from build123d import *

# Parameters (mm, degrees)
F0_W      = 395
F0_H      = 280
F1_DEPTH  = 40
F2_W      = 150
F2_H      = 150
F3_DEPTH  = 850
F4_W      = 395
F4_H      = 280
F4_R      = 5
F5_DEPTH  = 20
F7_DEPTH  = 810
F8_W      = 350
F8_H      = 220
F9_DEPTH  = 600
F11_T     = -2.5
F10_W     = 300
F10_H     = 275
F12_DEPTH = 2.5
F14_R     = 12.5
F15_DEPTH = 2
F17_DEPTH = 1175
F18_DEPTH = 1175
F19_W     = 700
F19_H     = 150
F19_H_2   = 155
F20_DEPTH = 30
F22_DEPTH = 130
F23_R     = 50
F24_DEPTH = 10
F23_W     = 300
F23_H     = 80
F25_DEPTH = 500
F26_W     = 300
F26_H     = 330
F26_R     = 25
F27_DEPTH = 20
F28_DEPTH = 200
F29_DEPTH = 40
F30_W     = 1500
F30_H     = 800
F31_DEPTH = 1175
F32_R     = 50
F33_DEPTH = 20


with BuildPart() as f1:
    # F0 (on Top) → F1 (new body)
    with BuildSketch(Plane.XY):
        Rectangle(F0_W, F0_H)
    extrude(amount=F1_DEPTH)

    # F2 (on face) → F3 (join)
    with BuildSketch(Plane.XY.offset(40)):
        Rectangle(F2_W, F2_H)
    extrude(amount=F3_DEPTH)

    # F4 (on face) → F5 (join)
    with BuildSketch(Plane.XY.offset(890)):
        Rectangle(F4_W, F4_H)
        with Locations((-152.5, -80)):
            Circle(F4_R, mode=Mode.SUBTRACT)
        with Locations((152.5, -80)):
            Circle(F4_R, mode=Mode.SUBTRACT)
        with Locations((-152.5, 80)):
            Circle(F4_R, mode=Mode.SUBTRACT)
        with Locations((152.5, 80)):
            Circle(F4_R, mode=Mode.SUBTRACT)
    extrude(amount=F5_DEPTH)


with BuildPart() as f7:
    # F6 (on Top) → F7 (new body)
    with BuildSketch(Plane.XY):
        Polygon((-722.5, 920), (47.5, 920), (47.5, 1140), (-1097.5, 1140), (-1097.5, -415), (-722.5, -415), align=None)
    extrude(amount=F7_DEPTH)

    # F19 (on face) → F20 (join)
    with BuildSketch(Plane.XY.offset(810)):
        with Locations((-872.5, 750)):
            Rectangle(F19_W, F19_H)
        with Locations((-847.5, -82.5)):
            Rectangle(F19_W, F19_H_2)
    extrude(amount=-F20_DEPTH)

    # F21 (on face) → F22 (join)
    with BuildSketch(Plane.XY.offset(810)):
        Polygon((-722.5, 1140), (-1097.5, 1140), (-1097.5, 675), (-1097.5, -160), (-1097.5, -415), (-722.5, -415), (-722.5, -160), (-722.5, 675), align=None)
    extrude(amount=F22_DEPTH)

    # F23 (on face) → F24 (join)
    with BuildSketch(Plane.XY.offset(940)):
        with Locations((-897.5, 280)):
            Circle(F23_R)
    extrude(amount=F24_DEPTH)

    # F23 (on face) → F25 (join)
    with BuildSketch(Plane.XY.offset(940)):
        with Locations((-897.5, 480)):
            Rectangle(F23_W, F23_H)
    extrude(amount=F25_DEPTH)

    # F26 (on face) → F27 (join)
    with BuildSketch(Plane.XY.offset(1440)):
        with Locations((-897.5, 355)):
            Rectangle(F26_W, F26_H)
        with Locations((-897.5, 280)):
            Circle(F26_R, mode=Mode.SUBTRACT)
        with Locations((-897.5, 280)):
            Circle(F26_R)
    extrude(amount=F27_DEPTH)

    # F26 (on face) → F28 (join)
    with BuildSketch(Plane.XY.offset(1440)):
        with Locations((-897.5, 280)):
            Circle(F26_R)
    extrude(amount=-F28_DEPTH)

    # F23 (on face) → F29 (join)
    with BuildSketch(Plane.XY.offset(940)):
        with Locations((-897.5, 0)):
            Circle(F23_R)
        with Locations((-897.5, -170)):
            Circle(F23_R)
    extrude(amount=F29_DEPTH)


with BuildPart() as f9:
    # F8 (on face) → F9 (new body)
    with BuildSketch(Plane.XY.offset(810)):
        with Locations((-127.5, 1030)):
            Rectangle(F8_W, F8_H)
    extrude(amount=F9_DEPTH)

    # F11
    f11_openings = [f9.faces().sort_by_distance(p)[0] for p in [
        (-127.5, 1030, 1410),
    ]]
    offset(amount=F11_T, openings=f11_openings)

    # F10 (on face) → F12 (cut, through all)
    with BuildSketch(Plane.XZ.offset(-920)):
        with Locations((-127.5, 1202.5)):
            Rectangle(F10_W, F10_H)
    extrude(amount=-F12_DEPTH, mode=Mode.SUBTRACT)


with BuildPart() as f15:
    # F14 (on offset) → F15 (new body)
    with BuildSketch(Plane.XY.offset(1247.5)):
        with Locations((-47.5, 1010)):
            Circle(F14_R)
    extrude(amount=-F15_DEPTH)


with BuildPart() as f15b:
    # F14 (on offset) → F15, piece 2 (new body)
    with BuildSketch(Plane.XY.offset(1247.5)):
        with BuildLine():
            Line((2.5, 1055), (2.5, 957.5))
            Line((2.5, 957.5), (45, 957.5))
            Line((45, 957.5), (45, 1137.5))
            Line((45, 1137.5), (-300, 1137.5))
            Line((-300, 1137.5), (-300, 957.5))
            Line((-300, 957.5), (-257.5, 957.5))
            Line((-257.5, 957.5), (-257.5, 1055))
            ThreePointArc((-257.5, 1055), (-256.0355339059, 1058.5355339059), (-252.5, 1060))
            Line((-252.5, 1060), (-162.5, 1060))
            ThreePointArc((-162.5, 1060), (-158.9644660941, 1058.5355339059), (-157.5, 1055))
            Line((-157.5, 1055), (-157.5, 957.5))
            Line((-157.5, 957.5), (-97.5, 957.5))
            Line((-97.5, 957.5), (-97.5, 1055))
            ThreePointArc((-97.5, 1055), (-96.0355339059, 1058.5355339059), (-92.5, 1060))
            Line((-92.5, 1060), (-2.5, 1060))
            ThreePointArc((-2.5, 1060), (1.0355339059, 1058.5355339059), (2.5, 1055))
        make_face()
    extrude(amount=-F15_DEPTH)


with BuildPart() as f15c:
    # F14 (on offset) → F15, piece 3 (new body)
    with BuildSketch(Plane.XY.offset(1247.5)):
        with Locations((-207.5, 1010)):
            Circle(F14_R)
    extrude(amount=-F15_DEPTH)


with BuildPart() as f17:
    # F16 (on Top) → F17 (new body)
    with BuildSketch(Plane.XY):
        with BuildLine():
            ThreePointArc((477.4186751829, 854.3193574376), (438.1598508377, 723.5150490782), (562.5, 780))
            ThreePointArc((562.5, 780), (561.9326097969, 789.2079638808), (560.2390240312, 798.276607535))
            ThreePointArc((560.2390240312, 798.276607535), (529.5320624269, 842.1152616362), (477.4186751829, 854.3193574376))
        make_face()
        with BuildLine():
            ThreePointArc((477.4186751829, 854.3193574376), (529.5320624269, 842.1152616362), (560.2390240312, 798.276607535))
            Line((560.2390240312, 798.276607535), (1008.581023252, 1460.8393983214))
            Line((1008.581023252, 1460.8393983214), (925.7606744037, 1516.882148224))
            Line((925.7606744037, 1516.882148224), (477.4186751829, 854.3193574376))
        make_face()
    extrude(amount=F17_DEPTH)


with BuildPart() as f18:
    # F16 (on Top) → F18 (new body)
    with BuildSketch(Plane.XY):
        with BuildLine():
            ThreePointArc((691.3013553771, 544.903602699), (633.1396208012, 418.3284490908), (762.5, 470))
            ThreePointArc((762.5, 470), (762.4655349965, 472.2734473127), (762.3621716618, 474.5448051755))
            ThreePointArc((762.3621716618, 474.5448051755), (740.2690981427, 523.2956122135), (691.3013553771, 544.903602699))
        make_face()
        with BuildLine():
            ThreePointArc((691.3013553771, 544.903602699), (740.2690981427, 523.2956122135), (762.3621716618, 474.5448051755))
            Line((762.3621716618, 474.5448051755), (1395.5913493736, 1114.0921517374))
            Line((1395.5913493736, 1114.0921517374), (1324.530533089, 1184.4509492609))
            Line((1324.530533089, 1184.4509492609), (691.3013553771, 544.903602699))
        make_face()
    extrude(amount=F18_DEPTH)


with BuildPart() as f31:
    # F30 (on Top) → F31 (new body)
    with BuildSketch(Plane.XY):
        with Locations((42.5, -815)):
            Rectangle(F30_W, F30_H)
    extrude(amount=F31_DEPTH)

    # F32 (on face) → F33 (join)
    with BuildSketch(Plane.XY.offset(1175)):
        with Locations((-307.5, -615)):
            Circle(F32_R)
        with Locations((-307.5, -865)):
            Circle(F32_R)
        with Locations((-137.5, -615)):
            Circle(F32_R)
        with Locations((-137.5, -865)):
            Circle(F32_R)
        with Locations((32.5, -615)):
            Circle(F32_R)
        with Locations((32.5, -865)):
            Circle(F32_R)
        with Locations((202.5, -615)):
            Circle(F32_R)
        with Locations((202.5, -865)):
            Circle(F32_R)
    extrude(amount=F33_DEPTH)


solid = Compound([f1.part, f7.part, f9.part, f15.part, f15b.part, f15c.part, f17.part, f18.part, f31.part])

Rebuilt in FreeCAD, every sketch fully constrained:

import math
import FreeCAD as App
import Part
import Sketcher
from FreeCAD import Vector
Q = App.Units.Quantity


def faces_at(feature, points):
    """Names of the faces that lie closest to the given points."""
    faces = feature.Shape.Faces
    near = lambda p: min(range(len(faces)), key=lambda i: faces[i].distToShape(Part.Vertex(*p))[0])
    return sorted({f"Face{near(p) + 1}" for p in points})


def add_polygon(sketch, points):
    """Adds a closed chain of lines whose ends are joined by coincident constraints."""
    first, n = sketch.GeometryCount, len(points)
    for a, b in zip(points, points[1:] + points[:1]):
        sketch.addGeometry(Part.LineSegment(App.Vector(*a, 0), App.Vector(*b, 0)), False)
    for i in range(n):
        sketch.addConstraint(Sketcher.Constraint("Coincident", first + i, 2, first + (i + 1) % n, 1))

doc = App.newDocument("Part")
body = doc.addObject("PartDesign::Body", "Body")

# Sketch on XY plane
sketch1 = body.newObject("Sketcher::SketchObject", "Sketch")
sketch1.AttachmentSupport = (doc.getObject("XY_Plane"), [""])
sketch1.MapMode = "FlatFace"
add_polygon(sketch1, [(-198, 140), (-198, -140), (198, -140), (198, 140)])  # lines 0-3
sketch1.addConstraint([
    Sketcher.Constraint("Vertical", 0),
    Sketcher.Constraint("Horizontal", 1),
    Sketcher.Constraint("Vertical", 2),
    Sketcher.Constraint("Horizontal", 3),
    Sketcher.Constraint("Symmetric", 0, 2, 2, 2, -1, 1),
    Sketcher.Constraint("DistanceX", 1, 1, 1, 2, Q("395 mm")),
    Sketcher.Constraint("DistanceY", 0, 2, 0, 1, Q("280 mm")),
])
pad1 = body.newObject("PartDesign::Pad", "Pad")
pad1.Profile = sketch1
pad1.Length = 40

# Sketch on XY plane
sketch2 = body.newObject("Sketcher::SketchObject", "Sketch001")
sketch2.AttachmentSupport = (doc.getObject("XY_Plane"), [""])
sketch2.MapMode = "FlatFace"
sketch2.AttachmentOffset = App.Placement(Vector(0, 0, 40), App.Rotation())
add_polygon(sketch2, [(-75, 75), (-75, -75), (75, -75), (75, 75)])  # lines 0-3
sketch2.addConstraint([
    Sketcher.Constraint("Vertical", 0),
    Sketcher.Constraint("Horizontal", 1),
    Sketcher.Constraint("Vertical", 2),
    Sketcher.Constraint("Horizontal", 3),
    Sketcher.Constraint("Symmetric", 0, 2, 2, 2, -1, 1),
    Sketcher.Constraint("Equal", 3, 0),
    Sketcher.Constraint("DistanceX", 1, 1, 1, 2, Q("150 mm")),
])
pad2 = body.newObject("PartDesign::Pad", "Pad001")
pad2.Profile = sketch2
pad2.Length = 850

# Sketch on XY plane
sketch3 = body.newObject("Sketcher::SketchObject", "Sketch002")
sketch3.AttachmentSupport = (doc.getObject("XY_Plane"), [""])
sketch3.MapMode = "FlatFace"
sketch3.AttachmentOffset = App.Placement(Vector(0, 0, 890), App.Rotation())
add_polygon(sketch3, [(-198, 140), (-198, -140), (198, -140), (198, 140)])  # lines 0-3
sketch3.addGeometry(Part.Circle(Vector(-152, -80, 0), Vector(0, 0, 1), 5), False)  # 4
sketch3.addGeometry(Part.Circle(Vector(152, -80, 0), Vector(0, 0, 1), 5), False)  # 5
sketch3.addGeometry(Part.Circle(Vector(-152, 80, 0), Vector(0, 0, 1), 5), False)  # 6
sketch3.addGeometry(Part.Circle(Vector(152, 80, 0), Vector(0, 0, 1), 5), False)  # 7
sketch3.addConstraint([
    Sketcher.Constraint("Vertical", 0),
    Sketcher.Constraint("Horizontal", 1),
    Sketcher.Constraint("Vertical", 2),
    Sketcher.Constraint("Horizontal", 3),
    Sketcher.Constraint("Equal", 4, 5),
    Sketcher.Constraint("Equal", 5, 6),
    Sketcher.Constraint("Equal", 6, 7),
    Sketcher.Constraint("Symmetric", 5, 3, 6, 3, -1, 1),
    Sketcher.Constraint("Symmetric", 4, 3, 7, 3, -1, 1),
    Sketcher.Constraint("Symmetric", 0, 2, 2, 2, -1, 1),
    Sketcher.Constraint("Symmetric", 4, 3, 5, 3, -2),
    Sketcher.Constraint("Diameter", 4, Q("10 mm")),
    Sketcher.Constraint("DistanceX", 1, 1, 1, 2, Q("395 mm")),
    Sketcher.Constraint("DistanceY", 0, 2, 0, 1, Q("280 mm")),
    Sketcher.Constraint("DistanceY", 4, 3, -1, 1, Q("80 mm")),
    Sketcher.Constraint("DistanceX", 4, 3, 5, 3, Q("305 mm")),
])
pad3 = body.newObject("PartDesign::Pad", "Pad002")
pad3.Profile = sketch3
pad3.Length = 20
body2 = doc.addObject("PartDesign::Body", "Body001")

# Sketch on XY plane
sketch4 = body2.newObject("Sketcher::SketchObject", "Sketch003")
sketch4.AttachmentSupport = (doc.getObject("XY_Plane001"), [""])
sketch4.MapMode = "FlatFace"
add_polygon(sketch4, [(-722, 920), (48, 920), (48, 1140), (-1098, 1140), (-1098, -415), (-722, -415)])  # lines 0-5
sketch4.addConstraint([
    Sketcher.Constraint("Horizontal", 0),
    Sketcher.Constraint("Vertical", 1),
    Sketcher.Constraint("Horizontal", 2),
    Sketcher.Constraint("Vertical", 3),
    Sketcher.Constraint("Horizontal", 4),
    Sketcher.Constraint("Vertical", 5),
    Sketcher.Constraint("DistanceX", 0, 1, 0, 2, Q("770 mm")),
    Sketcher.Constraint("DistanceX", 2, 2, 2, 1, Q("1145 mm")),
    Sketcher.Constraint("DistanceY", 1, 1, 1, 2, Q("220 mm")),
    Sketcher.Constraint("DistanceY", 3, 2, 3, 1, Q("1555 mm")),
    Sketcher.Constraint("DistanceY", -1, 1, 0, 2, Q("920 mm")),
    Sketcher.Constraint("DistanceX", -1, 1, 0, 2, Q("47.5 mm")),
])
pad4 = body2.newObject("PartDesign::Pad", "Pad003")
pad4.Profile = sketch4
pad4.Length = 810

# Sketch on XY plane
sketch5 = body2.newObject("Sketcher::SketchObject", "Sketch004")
sketch5.AttachmentSupport = (doc.getObject("XY_Plane001"), [""])
sketch5.MapMode = "FlatFace"
sketch5.AttachmentOffset = App.Placement(Vector(0, 0, 810), App.Rotation())
add_polygon(sketch5, [(-1222, 825), (-1222, 675), (-522, 675), (-522, 825)])  # lines 0-3
add_polygon(sketch5, [(-1198, -5), (-1198, -160), (-498, -160), (-498, -5)])  # lines 4-7
sketch5.addConstraint([
    Sketcher.Constraint("Vertical", 0),
    Sketcher.Constraint("Horizontal", 1),
    Sketcher.Constraint("Vertical", 2),
    Sketcher.Constraint("Horizontal", 3),
    Sketcher.Constraint("Vertical", 4),
    Sketcher.Constraint("Horizontal", 5),
    Sketcher.Constraint("Vertical", 6),
    Sketcher.Constraint("Horizontal", 7),
    Sketcher.Constraint("Equal", 3, 5),
    Sketcher.Constraint("DistanceX", 1, 1, 1, 2, Q("700 mm")),
    Sketcher.Constraint("DistanceY", 0, 2, 0, 1, Q("150 mm")),
    Sketcher.Constraint("DistanceY", 4, 2, 4, 1, Q("155 mm")),
    Sketcher.Constraint("DistanceY", -1, 1, 0, 2, Q("675 mm")),
    Sketcher.Constraint("DistanceY", 4, 2, -1, 1, Q("160 mm")),
    Sketcher.Constraint("DistanceX", 0, 2, 4, 2, Q("25 mm")),
    Sketcher.Constraint("DistanceX", 0, 2, -1, 1, Q("1222.5 mm")),
])
pad5 = body2.newObject("PartDesign::Pad", "Pad004")
pad5.Profile = sketch5
pad5.Length = 30
pad5.Reversed = True

# Sketch on XY plane
sketch6 = body2.newObject("Sketcher::SketchObject", "Sketch005")
sketch6.AttachmentSupport = (doc.getObject("XY_Plane001"), [""])
sketch6.MapMode = "FlatFace"
sketch6.AttachmentOffset = App.Placement(Vector(0, 0, 810), App.Rotation())
add_polygon(sketch6, [(-722, 1140), (-1098, 1140), (-1098, -415), (-722, -415)])  # lines 0-3
sketch6.addConstraint([
    Sketcher.Constraint("Horizontal", 0),
    Sketcher.Constraint("Vertical", 1),
    Sketcher.Constraint("Horizontal", 2),
    Sketcher.Constraint("Vertical", 3),
    Sketcher.Constraint("DistanceX", 0, 2, 0, 1, Q("375 mm")),
    Sketcher.Constraint("DistanceY", 1, 2, 1, 1, Q("1555 mm")),
    Sketcher.Constraint("DistanceY", -1, 1, 0, 2, Q("1140 mm")),
    Sketcher.Constraint("DistanceX", 0, 2, -1, 1, Q("1097.5 mm")),
])
pad6 = body2.newObject("PartDesign::Pad", "Pad005")
pad6.Profile = sketch6
pad6.Length = 130

# Sketch on XY plane
sketch7 = body2.newObject("Sketcher::SketchObject", "Sketch006")
sketch7.AttachmentSupport = (doc.getObject("XY_Plane001"), [""])
sketch7.MapMode = "FlatFace"
sketch7.AttachmentOffset = App.Placement(Vector(0, 0, 940), App.Rotation())
sketch7.addGeometry(Part.Circle(Vector(-898, 280, 0), Vector(0, 0, 1), 50), False)
sketch7.addConstraint([
    Sketcher.Constraint("Diameter", 0, Q("100 mm")),
    Sketcher.Constraint("DistanceY", -1, 1, 0, 3, Q("280 mm")),
    Sketcher.Constraint("DistanceX", 0, 3, -1, 1, Q("897.5 mm")),
])
pad7 = body2.newObject("PartDesign::Pad", "Pad006")
pad7.Profile = sketch7
pad7.Length = 10

# Sketch on XY plane
sketch8 = body2.newObject("Sketcher::SketchObject", "Sketch007")
sketch8.AttachmentSupport = (doc.getObject("XY_Plane001"), [""])
sketch8.MapMode = "FlatFace"
sketch8.AttachmentOffset = App.Placement(Vector(0, 0, 940), App.Rotation())
add_polygon(sketch8, [(-1048, 520), (-1048, 440), (-748, 440), (-748, 520)])  # lines 0-3
sketch8.addConstraint([
    Sketcher.Constraint("Vertical", 0),
    Sketcher.Constraint("Horizontal", 1),
    Sketcher.Constraint("Vertical", 2),
    Sketcher.Constraint("Horizontal", 3),
    Sketcher.Constraint("DistanceX", 1, 1, 1, 2, Q("300 mm")),
    Sketcher.Constraint("DistanceY", 0, 2, 0, 1, Q("80 mm")),
    Sketcher.Constraint("DistanceY", -1, 1, 0, 2, Q("440 mm")),
    Sketcher.Constraint("DistanceX", 0, 2, -1, 1, Q("1047.5 mm")),
])
pad8 = body2.newObject("PartDesign::Pad", "Pad007")
pad8.Profile = sketch8
pad8.Length = 500

# Sketch on XY plane
sketch9 = body2.newObject("Sketcher::SketchObject", "Sketch008")
sketch9.AttachmentSupport = (doc.getObject("XY_Plane001"), [""])
sketch9.MapMode = "FlatFace"
sketch9.AttachmentOffset = App.Placement(Vector(0, 0, 1440), App.Rotation())
add_polygon(sketch9, [(-1048, 520), (-1048, 190), (-748, 190), (-748, 520)])  # lines 0-3
sketch9.addConstraint([
    Sketcher.Constraint("Vertical", 0),
    Sketcher.Constraint("Horizontal", 1),
    Sketcher.Constraint("Vertical", 2),
    Sketcher.Constraint("Horizontal", 3),
    Sketcher.Constraint("DistanceX", 1, 1, 1, 2, Q("300 mm")),
    Sketcher.Constraint("DistanceY", 0, 2, 0, 1, Q("330 mm")),
    Sketcher.Constraint("DistanceY", -1, 1, 0, 2, Q("190 mm")),
    Sketcher.Constraint("DistanceX", 0, 2, -1, 1, Q("1047.5 mm")),
])
pad9 = body2.newObject("PartDesign::Pad", "Pad008")
pad9.Profile = sketch9
pad9.Length = 20

# Sketch on XY plane
sketch10 = body2.newObject("Sketcher::SketchObject", "Sketch009")
sketch10.AttachmentSupport = (doc.getObject("XY_Plane001"), [""])
sketch10.MapMode = "FlatFace"
sketch10.AttachmentOffset = App.Placement(Vector(0, 0, 1440), App.Rotation())
sketch10.addGeometry(Part.Circle(Vector(-898, 280, 0), Vector(0, 0, 1), 25), False)
sketch10.addConstraint([
    Sketcher.Constraint("Diameter", 0, Q("50 mm")),
    Sketcher.Constraint("DistanceY", -1, 1, 0, 3, Q("280 mm")),
    Sketcher.Constraint("DistanceX", 0, 3, -1, 1, Q("897.5 mm")),
])
pad10 = body2.newObject("PartDesign::Pad", "Pad009")
pad10.Profile = sketch10
pad10.Length = 200
pad10.Reversed = True

# Sketch on XY plane
sketch11 = body2.newObject("Sketcher::SketchObject", "Sketch010")
sketch11.AttachmentSupport = (doc.getObject("XY_Plane001"), [""])
sketch11.MapMode = "FlatFace"
sketch11.AttachmentOffset = App.Placement(Vector(0, 0, 940), App.Rotation())
sketch11.addGeometry([
    Part.Circle(Vector(-898, 0, 0), Vector(0, 0, 1), 50),
    Part.Circle(Vector(-898, -170, 0), Vector(0, 0, 1), 50),
], False)
sketch11.addConstraint([
    Sketcher.Constraint("Equal", 0, 1),
    Sketcher.Constraint("PointOnObject", 0, 3, -1),
    Sketcher.Constraint("Vertical", 0, 3, 1, 3),
    Sketcher.Constraint("Diameter", 0, Q("100 mm")),
    Sketcher.Constraint("DistanceY", 1, 3, -1, 1, Q("170 mm")),
    Sketcher.Constraint("DistanceX", 0, 3, -1, 1, Q("897.5 mm")),
])
pad11 = body2.newObject("PartDesign::Pad", "Pad010")
pad11.Profile = sketch11
pad11.Length = 40
body3 = doc.addObject("PartDesign::Body", "Body002")

# Sketch on XY plane
sketch12 = body3.newObject("Sketcher::SketchObject", "Sketch011")
sketch12.AttachmentSupport = (doc.getObject("XY_Plane002"), [""])
sketch12.MapMode = "FlatFace"
sketch12.AttachmentOffset = App.Placement(Vector(0, 0, 810), App.Rotation())
add_polygon(sketch12, [(-302, 1140), (-302, 920), (48, 920), (48, 1140)])  # lines 0-3
sketch12.addConstraint([
    Sketcher.Constraint("Vertical", 0),
    Sketcher.Constraint("Horizontal", 1),
    Sketcher.Constraint("Vertical", 2),
    Sketcher.Constraint("Horizontal", 3),
    Sketcher.Constraint("DistanceX", 1, 1, 1, 2, Q("350 mm")),
    Sketcher.Constraint("DistanceY", 0, 2, 0, 1, Q("220 mm")),
    Sketcher.Constraint("DistanceY", -1, 1, 0, 2, Q("920 mm")),
    Sketcher.Constraint("DistanceX", 0, 2, -1, 1, Q("302.5 mm")),
])
pad12 = body3.newObject("PartDesign::Pad", "Pad011")
pad12.Profile = sketch12
pad12.Length = 600
doc.recompute()

thickness = body3.newObject("PartDesign::Thickness", "Thickness")
thickness.Base = (pad12, faces_at(pad12, [(-127.5, 1030, 1410)]))
thickness.Value = 2.5
thickness.Reversed = True
thickness.Join = "Arc"

# Sketch on XZ plane
sketch13 = body3.newObject("Sketcher::SketchObject", "Sketch012")
sketch13.AttachmentSupport = (doc.getObject("XZ_Plane002"), [""])
sketch13.MapMode = "FlatFace"
sketch13.AttachmentOffset = App.Placement(Vector(0, 0, -920), App.Rotation())
add_polygon(sketch13, [(-278, 1340), (-278, 1065), (22, 1065), (22, 1340)])  # lines 0-3
sketch13.addConstraint([
    Sketcher.Constraint("Vertical", 0),
    Sketcher.Constraint("Horizontal", 1),
    Sketcher.Constraint("Vertical", 2),
    Sketcher.Constraint("Horizontal", 3),
    Sketcher.Constraint("DistanceX", 1, 1, 1, 2, Q("300 mm")),
    Sketcher.Constraint("DistanceY", 0, 2, 0, 1, Q("275 mm")),
    Sketcher.Constraint("DistanceY", -1, 1, 0, 2, Q("1065 mm")),
    Sketcher.Constraint("DistanceX", 0, 2, -1, 1, Q("277.5 mm")),
])
pocket1 = body3.newObject("PartDesign::Pocket", "Pocket")
pocket1.Profile = sketch13
pocket1.Length = 2.5
body4 = doc.addObject("PartDesign::Body", "Body003")

# Sketch on XY plane
sketch14 = body4.newObject("Sketcher::SketchObject", "Sketch013")
sketch14.AttachmentSupport = (doc.getObject("XY_Plane003"), [""])
sketch14.MapMode = "FlatFace"
sketch14.AttachmentOffset = App.Placement(Vector(0, 0, 1247.5), App.Rotation())
sketch14.addGeometry(Part.Circle(Vector(-48, 1010, 0), Vector(0, 0, 1), 12), False)
sketch14.addConstraint([
    Sketcher.Constraint("Diameter", 0, Q("25 mm")),
    Sketcher.Constraint("DistanceY", -1, 1, 0, 3, Q("1010 mm")),
    Sketcher.Constraint("DistanceX", 0, 3, -1, 1, Q("47.5 mm")),
])
pad13 = body4.newObject("PartDesign::Pad", "Pad012")
pad13.Profile = sketch14
pad13.Length = 2
pad13.Reversed = True
body5 = doc.addObject("PartDesign::Body", "Body004")

# Sketch on XY plane
sketch15 = body5.newObject("Sketcher::SketchObject", "Sketch014")
sketch15.AttachmentSupport = (doc.getObject("XY_Plane004"), [""])
sketch15.MapMode = "FlatFace"
sketch15.AttachmentOffset = App.Placement(Vector(0, 0, 1247.5), App.Rotation())
sketch15.addGeometry([
    Part.LineSegment(Vector(2, 1055, 0), Vector(2, 958, 0)),  # 0
    Part.LineSegment(Vector(2, 958, 0), Vector(45, 958, 0)),  # 1
    Part.LineSegment(Vector(45, 958, 0), Vector(45, 1138, 0)),  # 2
    Part.LineSegment(Vector(45, 1138, 0), Vector(-300, 1138, 0)),  # 3
    Part.LineSegment(Vector(-300, 1138, 0), Vector(-300, 958, 0)),  # 4
    Part.LineSegment(Vector(-300, 958, 0), Vector(-258, 958, 0)),  # 5
    Part.LineSegment(Vector(-258, 958, 0), Vector(-258, 1055, 0)),  # 6
    Part.ArcOfCircle(Part.Circle(Vector(-252, 1055, 0), Vector(0, 0, 1), 5), math.radians(90), math.radians(180)),  # 7
    Part.LineSegment(Vector(-252, 1060, 0), Vector(-162, 1060, 0)),  # 8
    Part.ArcOfCircle(Part.Circle(Vector(-162, 1055, 0), Vector(0, 0, 1), 5), math.radians(0), math.radians(90)),  # 9
    Part.LineSegment(Vector(-158, 1055, 0), Vector(-158, 958, 0)),  # 10
    Part.LineSegment(Vector(-158, 958, 0), Vector(-98, 958, 0)),  # 11
    Part.LineSegment(Vector(-98, 958, 0), Vector(-98, 1055, 0)),  # 12
    Part.ArcOfCircle(Part.Circle(Vector(-92, 1055, 0), Vector(0, 0, 1), 5), math.radians(90), math.radians(180)),  # 13
    Part.LineSegment(Vector(-92, 1060, 0), Vector(-2, 1060, 0)),  # 14
    Part.ArcOfCircle(Part.Circle(Vector(-2, 1055, 0), Vector(0, 0, 1), 5), math.radians(0), math.radians(90)),  # 15
], False)
sketch15.addConstraint([
    Sketcher.Constraint("Coincident", 0, 2, 1, 1),
    Sketcher.Constraint("Coincident", 1, 2, 2, 1),
    Sketcher.Constraint("Coincident", 2, 2, 3, 1),
    Sketcher.Constraint("Coincident", 3, 2, 4, 1),
    Sketcher.Constraint("Coincident", 4, 2, 5, 1),
    Sketcher.Constraint("Coincident", 5, 2, 6, 1),
    Sketcher.Constraint("Tangent", 6, 2, 7, 2),
    Sketcher.Constraint("Tangent", 7, 1, 8, 1),
    Sketcher.Constraint("Tangent", 8, 2, 9, 2),
    Sketcher.Constraint("Tangent", 9, 1, 10, 1),
    Sketcher.Constraint("Coincident", 10, 2, 11, 1),
    Sketcher.Constraint("Coincident", 11, 2, 12, 1),
    Sketcher.Constraint("Tangent", 12, 2, 13, 2),
    Sketcher.Constraint("Tangent", 13, 1, 14, 1),
    Sketcher.Constraint("Tangent", 14, 2, 15, 2),
    Sketcher.Constraint("Tangent", 15, 1, 0, 1),
    Sketcher.Constraint("Vertical", 0),
    Sketcher.Constraint("Horizontal", 1),
    Sketcher.Constraint("Vertical", 2),
    Sketcher.Constraint("Horizontal", 3),
    Sketcher.Constraint("Vertical", 4),
    Sketcher.Constraint("Horizontal", 5),
    Sketcher.Constraint("Vertical", 6),
    Sketcher.Constraint("Horizontal", 8),
    Sketcher.Constraint("Vertical", 10),
    Sketcher.Constraint("Horizontal", 11),
    Sketcher.Constraint("Vertical", 12),
    Sketcher.Constraint("Horizontal", 14),
    Sketcher.Constraint("Equal", 7, 9),
    Sketcher.Constraint("Equal", 9, 13),
    Sketcher.Constraint("Equal", 13, 15),
    Sketcher.Constraint("Horizontal", 9, 3, 13, 3),
    Sketcher.Constraint("Horizontal", 1, 2, 4, 2),
    Sketcher.Constraint("Horizontal", 5, 2, 10, 2),
    Sketcher.Constraint("Equal", 1, 5),
    Sketcher.Constraint("Equal", 8, 14),
    Sketcher.Constraint("Radius", 7, Q("5 mm")),
    Sketcher.Constraint("DistanceX", 3, 2, 3, 1, Q("345 mm")),
    Sketcher.Constraint("DistanceX", 8, 1, 8, 2, Q("90 mm")),
    Sketcher.Constraint("DistanceX", 11, 1, 11, 2, Q("60 mm")),
    Sketcher.Constraint("DistanceY", 2, 1, 2, 2, Q("180 mm")),
    Sketcher.Constraint("DistanceY", 0, 2, 0, 1, Q("97.5 mm")),
    Sketcher.Constraint("DistanceY", -1, 1, 7, 3, Q("1055 mm")),
    Sketcher.Constraint("DistanceX", -1, 1, 1, 2, Q("45 mm")),
])
pad14 = body5.newObject("PartDesign::Pad", "Pad013")
pad14.Profile = sketch15
pad14.Length = 2
pad14.Reversed = True
body6 = doc.addObject("PartDesign::Body", "Body005")

# Sketch on XY plane
sketch16 = body6.newObject("Sketcher::SketchObject", "Sketch015")
sketch16.AttachmentSupport = (doc.getObject("XY_Plane005"), [""])
sketch16.MapMode = "FlatFace"
sketch16.AttachmentOffset = App.Placement(Vector(0, 0, 1247.5), App.Rotation())
sketch16.addGeometry(Part.Circle(Vector(-208, 1010, 0), Vector(0, 0, 1), 12), False)
sketch16.addConstraint([
    Sketcher.Constraint("Diameter", 0, Q("25 mm")),
    Sketcher.Constraint("DistanceY", -1, 1, 0, 3, Q("1010 mm")),
    Sketcher.Constraint("DistanceX", 0, 3, -1, 1, Q("207.5 mm")),
])
pad15 = body6.newObject("PartDesign::Pad", "Pad014")
pad15.Profile = sketch16
pad15.Length = 2
pad15.Reversed = True
body7 = doc.addObject("PartDesign::Body", "Body006")

# Sketch on XY plane
sketch17 = body7.newObject("Sketcher::SketchObject", "Sketch016")
sketch17.AttachmentSupport = (doc.getObject("XY_Plane006"), [""])
sketch17.MapMode = "FlatFace"
sketch17.addGeometry([
    Part.ArcOfCircle(Part.Circle(Vector(488, 780, 0), Vector(0, 0, 1), 75), math.radians(98), math.radians(360)),  # 0
    Part.ArcOfCircle(Part.Circle(Vector(488, 780, 0), Vector(0, 0, 1), 75), math.radians(0), math.radians(14.1)),  # 1
    Part.LineSegment(Vector(560, 798, 0), Vector(1009, 1461, 0)),  # 2
    Part.LineSegment(Vector(1009, 1461, 0), Vector(926, 1517, 0)),  # 3
    Part.LineSegment(Vector(926, 1517, 0), Vector(477, 854, 0)),  # 4
], False)
sketch17.addConstraint([
    Sketcher.Constraint("Tangent", 0, 2, 1, 1),
    Sketcher.Constraint("Coincident", 1, 2, 2, 1),
    Sketcher.Constraint("Coincident", 2, 2, 3, 1),
    Sketcher.Constraint("Coincident", 3, 2, 4, 1),
    Sketcher.Constraint("Coincident", 4, 2, 0, 1),
    Sketcher.Constraint("Equal", 0, 1),
    Sketcher.Constraint("Perpendicular", 2, 3),
    Sketcher.Constraint("Perpendicular", 3, 4),
    Sketcher.Constraint("Horizontal", 1, 3, 0, 2),
    Sketcher.Constraint("Equal", 2, 4),
    Sketcher.Constraint("Radius", 0, Q("75 mm")),
    Sketcher.Constraint("Distance", 2, Q("800 mm")),
    Sketcher.Constraint("Distance", 3, Q("100 mm")),
    Sketcher.Constraint("DistanceY", -1, 1, 0, 3, Q("780 mm")),
    Sketcher.Constraint("DistanceX", -1, 1, 0, 3, Q("487.5 mm")),
    Sketcher.Constraint("DistanceX", 1, 2, 2, 2, Q("448.341999 mm")),
])
pad16 = body7.newObject("PartDesign::Pad", "Pad015")
pad16.Profile = sketch17
pad16.Length = 1175
body8 = doc.addObject("PartDesign::Body", "Body007")

# Sketch on XY plane
sketch18 = body8.newObject("Sketcher::SketchObject", "Sketch017")
sketch18.AttachmentSupport = (doc.getObject("XY_Plane007"), [""])
sketch18.MapMode = "FlatFace"
sketch18.addGeometry([
    Part.ArcOfCircle(Part.Circle(Vector(687.5, 470, 0), Vector(0, 0, 1), 75), math.radians(87), math.radians(360)),  # 0
    Part.ArcOfCircle(Part.Circle(Vector(687.5, 470, 0), Vector(0, 0, 1), 75), math.radians(0), math.radians(3.47)),  # 1
    Part.LineSegment(Vector(762.4, 474.5, 0), Vector(1395.6, 1114.1, 0)),  # 2
    Part.LineSegment(Vector(1395.6, 1114.1, 0), Vector(1324.5, 1184.5, 0)),  # 3
    Part.LineSegment(Vector(1324.5, 1184.5, 0), Vector(691.3, 544.9, 0)),  # 4
], False)
sketch18.addConstraint([
    Sketcher.Constraint("Tangent", 0, 2, 1, 1),
    Sketcher.Constraint("Coincident", 1, 2, 2, 1),
    Sketcher.Constraint("Coincident", 2, 2, 3, 1),
    Sketcher.Constraint("Coincident", 3, 2, 4, 1),
    Sketcher.Constraint("Coincident", 4, 2, 0, 1),
    Sketcher.Constraint("Equal", 0, 1),
    Sketcher.Constraint("Perpendicular", 2, 3),
    Sketcher.Constraint("Perpendicular", 3, 4),
    Sketcher.Constraint("Horizontal", 1, 3, 0, 2),
    Sketcher.Constraint("Equal", 2, 4),
    Sketcher.Constraint("Radius", 0, Q("75 mm")),
    Sketcher.Constraint("Distance", 2, Q("900 mm")),
    Sketcher.Constraint("Distance", 3, Q("100 mm")),
    Sketcher.Constraint("DistanceY", -1, 1, 0, 3, Q("470 mm")),
    Sketcher.Constraint("DistanceX", -1, 1, 0, 3, Q("687.5 mm")),
    Sketcher.Constraint("DistanceX", -1, 1, 2, 2, Q("1395.591349 mm")),
])
pad17 = body8.newObject("PartDesign::Pad", "Pad016")
pad17.Profile = sketch18
pad17.Length = 1175
body9 = doc.addObject("PartDesign::Body", "Body008")

# Sketch on XY plane
sketch19 = body9.newObject("Sketcher::SketchObject", "Sketch018")
sketch19.AttachmentSupport = (doc.getObject("XY_Plane008"), [""])
sketch19.MapMode = "FlatFace"
add_polygon(sketch19, [(-708, -415), (-708, -1215), (792, -1215), (792, -415)])  # lines 0-3
sketch19.addConstraint([
    Sketcher.Constraint("Vertical", 0),
    Sketcher.Constraint("Horizontal", 1),
    Sketcher.Constraint("Vertical", 2),
    Sketcher.Constraint("Horizontal", 3),
    Sketcher.Constraint("DistanceX", 1, 1, 1, 2, Q("1500 mm")),
    Sketcher.Constraint("DistanceY", 0, 2, 0, 1, Q("800 mm")),
    Sketcher.Constraint("DistanceY", 0, 2, -1, 1, Q("1215 mm")),
    Sketcher.Constraint("DistanceX", 0, 2, -1, 1, Q("707.5 mm")),
])
pad18 = body9.newObject("PartDesign::Pad", "Pad017")
pad18.Profile = sketch19
pad18.Length = 1175

# Sketch on XY plane
sketch20 = body9.newObject("Sketcher::SketchObject", "Sketch019")
sketch20.AttachmentSupport = (doc.getObject("XY_Plane008"), [""])
sketch20.MapMode = "FlatFace"
sketch20.AttachmentOffset = App.Placement(Vector(0, 0, 1175), App.Rotation())
sketch20.addGeometry([
    Part.Circle(Vector(-308, -615, 0), Vector(0, 0, 1), 50),  # 0
    Part.Circle(Vector(-308, -865, 0), Vector(0, 0, 1), 50),  # 1
    Part.Circle(Vector(-138, -615, 0), Vector(0, 0, 1), 50),  # 2
    Part.Circle(Vector(-138, -865, 0), Vector(0, 0, 1), 50),  # 3
    Part.Circle(Vector(32, -615, 0), Vector(0, 0, 1), 50),  # 4
    Part.Circle(Vector(32, -865, 0), Vector(0, 0, 1), 50),  # 5
    Part.Circle(Vector(202, -615, 0), Vector(0, 0, 1), 50),  # 6
    Part.Circle(Vector(202, -865, 0), Vector(0, 0, 1), 50),  # 7
], False)
sketch20.addConstraint([
    Sketcher.Constraint("Equal", 0, 1),
    Sketcher.Constraint("Equal", 1, 2),
    Sketcher.Constraint("Equal", 2, 3),
    Sketcher.Constraint("Equal", 3, 4),
    Sketcher.Constraint("Equal", 4, 5),
    Sketcher.Constraint("Equal", 5, 6),
    Sketcher.Constraint("Equal", 6, 7),
    Sketcher.Constraint("Horizontal", 0, 3, 2, 3),
    Sketcher.Constraint("Horizontal", 1, 3, 3, 3),
    Sketcher.Constraint("Horizontal", 2, 3, 4, 3),
    Sketcher.Constraint("Horizontal", 3, 3, 5, 3),
    Sketcher.Constraint("Horizontal", 4, 3, 6, 3),
    Sketcher.Constraint("Horizontal", 5, 3, 7, 3),
    Sketcher.Constraint("Vertical", 0, 3, 1, 3),
    Sketcher.Constraint("Vertical", 2, 3, 3, 3),
    Sketcher.Constraint("Vertical", 4, 3, 5, 3),
    Sketcher.Constraint("Vertical", 6, 3, 7, 3),
    Sketcher.Constraint("Diameter", 0, Q("100 mm")),
    Sketcher.Constraint("DistanceY", 0, 3, -1, 1, Q("615 mm")),
    Sketcher.Constraint("DistanceY", 1, 3, -1, 1, Q("865 mm")),
    Sketcher.Constraint("DistanceX", 0, 3, 2, 3, Q("170 mm")),
    Sketcher.Constraint("DistanceX", 2, 3, 4, 3, Q("170 mm")),
    Sketcher.Constraint("DistanceX", 4, 3, 6, 3, Q("170 mm")),
    Sketcher.Constraint("DistanceX", 0, 3, -1, 1, Q("307.5 mm")),
])
pad19 = body9.newObject("PartDesign::Pad", "Pad018")
pad19.Profile = sketch20
pad19.Length = 20

doc.recompute()
